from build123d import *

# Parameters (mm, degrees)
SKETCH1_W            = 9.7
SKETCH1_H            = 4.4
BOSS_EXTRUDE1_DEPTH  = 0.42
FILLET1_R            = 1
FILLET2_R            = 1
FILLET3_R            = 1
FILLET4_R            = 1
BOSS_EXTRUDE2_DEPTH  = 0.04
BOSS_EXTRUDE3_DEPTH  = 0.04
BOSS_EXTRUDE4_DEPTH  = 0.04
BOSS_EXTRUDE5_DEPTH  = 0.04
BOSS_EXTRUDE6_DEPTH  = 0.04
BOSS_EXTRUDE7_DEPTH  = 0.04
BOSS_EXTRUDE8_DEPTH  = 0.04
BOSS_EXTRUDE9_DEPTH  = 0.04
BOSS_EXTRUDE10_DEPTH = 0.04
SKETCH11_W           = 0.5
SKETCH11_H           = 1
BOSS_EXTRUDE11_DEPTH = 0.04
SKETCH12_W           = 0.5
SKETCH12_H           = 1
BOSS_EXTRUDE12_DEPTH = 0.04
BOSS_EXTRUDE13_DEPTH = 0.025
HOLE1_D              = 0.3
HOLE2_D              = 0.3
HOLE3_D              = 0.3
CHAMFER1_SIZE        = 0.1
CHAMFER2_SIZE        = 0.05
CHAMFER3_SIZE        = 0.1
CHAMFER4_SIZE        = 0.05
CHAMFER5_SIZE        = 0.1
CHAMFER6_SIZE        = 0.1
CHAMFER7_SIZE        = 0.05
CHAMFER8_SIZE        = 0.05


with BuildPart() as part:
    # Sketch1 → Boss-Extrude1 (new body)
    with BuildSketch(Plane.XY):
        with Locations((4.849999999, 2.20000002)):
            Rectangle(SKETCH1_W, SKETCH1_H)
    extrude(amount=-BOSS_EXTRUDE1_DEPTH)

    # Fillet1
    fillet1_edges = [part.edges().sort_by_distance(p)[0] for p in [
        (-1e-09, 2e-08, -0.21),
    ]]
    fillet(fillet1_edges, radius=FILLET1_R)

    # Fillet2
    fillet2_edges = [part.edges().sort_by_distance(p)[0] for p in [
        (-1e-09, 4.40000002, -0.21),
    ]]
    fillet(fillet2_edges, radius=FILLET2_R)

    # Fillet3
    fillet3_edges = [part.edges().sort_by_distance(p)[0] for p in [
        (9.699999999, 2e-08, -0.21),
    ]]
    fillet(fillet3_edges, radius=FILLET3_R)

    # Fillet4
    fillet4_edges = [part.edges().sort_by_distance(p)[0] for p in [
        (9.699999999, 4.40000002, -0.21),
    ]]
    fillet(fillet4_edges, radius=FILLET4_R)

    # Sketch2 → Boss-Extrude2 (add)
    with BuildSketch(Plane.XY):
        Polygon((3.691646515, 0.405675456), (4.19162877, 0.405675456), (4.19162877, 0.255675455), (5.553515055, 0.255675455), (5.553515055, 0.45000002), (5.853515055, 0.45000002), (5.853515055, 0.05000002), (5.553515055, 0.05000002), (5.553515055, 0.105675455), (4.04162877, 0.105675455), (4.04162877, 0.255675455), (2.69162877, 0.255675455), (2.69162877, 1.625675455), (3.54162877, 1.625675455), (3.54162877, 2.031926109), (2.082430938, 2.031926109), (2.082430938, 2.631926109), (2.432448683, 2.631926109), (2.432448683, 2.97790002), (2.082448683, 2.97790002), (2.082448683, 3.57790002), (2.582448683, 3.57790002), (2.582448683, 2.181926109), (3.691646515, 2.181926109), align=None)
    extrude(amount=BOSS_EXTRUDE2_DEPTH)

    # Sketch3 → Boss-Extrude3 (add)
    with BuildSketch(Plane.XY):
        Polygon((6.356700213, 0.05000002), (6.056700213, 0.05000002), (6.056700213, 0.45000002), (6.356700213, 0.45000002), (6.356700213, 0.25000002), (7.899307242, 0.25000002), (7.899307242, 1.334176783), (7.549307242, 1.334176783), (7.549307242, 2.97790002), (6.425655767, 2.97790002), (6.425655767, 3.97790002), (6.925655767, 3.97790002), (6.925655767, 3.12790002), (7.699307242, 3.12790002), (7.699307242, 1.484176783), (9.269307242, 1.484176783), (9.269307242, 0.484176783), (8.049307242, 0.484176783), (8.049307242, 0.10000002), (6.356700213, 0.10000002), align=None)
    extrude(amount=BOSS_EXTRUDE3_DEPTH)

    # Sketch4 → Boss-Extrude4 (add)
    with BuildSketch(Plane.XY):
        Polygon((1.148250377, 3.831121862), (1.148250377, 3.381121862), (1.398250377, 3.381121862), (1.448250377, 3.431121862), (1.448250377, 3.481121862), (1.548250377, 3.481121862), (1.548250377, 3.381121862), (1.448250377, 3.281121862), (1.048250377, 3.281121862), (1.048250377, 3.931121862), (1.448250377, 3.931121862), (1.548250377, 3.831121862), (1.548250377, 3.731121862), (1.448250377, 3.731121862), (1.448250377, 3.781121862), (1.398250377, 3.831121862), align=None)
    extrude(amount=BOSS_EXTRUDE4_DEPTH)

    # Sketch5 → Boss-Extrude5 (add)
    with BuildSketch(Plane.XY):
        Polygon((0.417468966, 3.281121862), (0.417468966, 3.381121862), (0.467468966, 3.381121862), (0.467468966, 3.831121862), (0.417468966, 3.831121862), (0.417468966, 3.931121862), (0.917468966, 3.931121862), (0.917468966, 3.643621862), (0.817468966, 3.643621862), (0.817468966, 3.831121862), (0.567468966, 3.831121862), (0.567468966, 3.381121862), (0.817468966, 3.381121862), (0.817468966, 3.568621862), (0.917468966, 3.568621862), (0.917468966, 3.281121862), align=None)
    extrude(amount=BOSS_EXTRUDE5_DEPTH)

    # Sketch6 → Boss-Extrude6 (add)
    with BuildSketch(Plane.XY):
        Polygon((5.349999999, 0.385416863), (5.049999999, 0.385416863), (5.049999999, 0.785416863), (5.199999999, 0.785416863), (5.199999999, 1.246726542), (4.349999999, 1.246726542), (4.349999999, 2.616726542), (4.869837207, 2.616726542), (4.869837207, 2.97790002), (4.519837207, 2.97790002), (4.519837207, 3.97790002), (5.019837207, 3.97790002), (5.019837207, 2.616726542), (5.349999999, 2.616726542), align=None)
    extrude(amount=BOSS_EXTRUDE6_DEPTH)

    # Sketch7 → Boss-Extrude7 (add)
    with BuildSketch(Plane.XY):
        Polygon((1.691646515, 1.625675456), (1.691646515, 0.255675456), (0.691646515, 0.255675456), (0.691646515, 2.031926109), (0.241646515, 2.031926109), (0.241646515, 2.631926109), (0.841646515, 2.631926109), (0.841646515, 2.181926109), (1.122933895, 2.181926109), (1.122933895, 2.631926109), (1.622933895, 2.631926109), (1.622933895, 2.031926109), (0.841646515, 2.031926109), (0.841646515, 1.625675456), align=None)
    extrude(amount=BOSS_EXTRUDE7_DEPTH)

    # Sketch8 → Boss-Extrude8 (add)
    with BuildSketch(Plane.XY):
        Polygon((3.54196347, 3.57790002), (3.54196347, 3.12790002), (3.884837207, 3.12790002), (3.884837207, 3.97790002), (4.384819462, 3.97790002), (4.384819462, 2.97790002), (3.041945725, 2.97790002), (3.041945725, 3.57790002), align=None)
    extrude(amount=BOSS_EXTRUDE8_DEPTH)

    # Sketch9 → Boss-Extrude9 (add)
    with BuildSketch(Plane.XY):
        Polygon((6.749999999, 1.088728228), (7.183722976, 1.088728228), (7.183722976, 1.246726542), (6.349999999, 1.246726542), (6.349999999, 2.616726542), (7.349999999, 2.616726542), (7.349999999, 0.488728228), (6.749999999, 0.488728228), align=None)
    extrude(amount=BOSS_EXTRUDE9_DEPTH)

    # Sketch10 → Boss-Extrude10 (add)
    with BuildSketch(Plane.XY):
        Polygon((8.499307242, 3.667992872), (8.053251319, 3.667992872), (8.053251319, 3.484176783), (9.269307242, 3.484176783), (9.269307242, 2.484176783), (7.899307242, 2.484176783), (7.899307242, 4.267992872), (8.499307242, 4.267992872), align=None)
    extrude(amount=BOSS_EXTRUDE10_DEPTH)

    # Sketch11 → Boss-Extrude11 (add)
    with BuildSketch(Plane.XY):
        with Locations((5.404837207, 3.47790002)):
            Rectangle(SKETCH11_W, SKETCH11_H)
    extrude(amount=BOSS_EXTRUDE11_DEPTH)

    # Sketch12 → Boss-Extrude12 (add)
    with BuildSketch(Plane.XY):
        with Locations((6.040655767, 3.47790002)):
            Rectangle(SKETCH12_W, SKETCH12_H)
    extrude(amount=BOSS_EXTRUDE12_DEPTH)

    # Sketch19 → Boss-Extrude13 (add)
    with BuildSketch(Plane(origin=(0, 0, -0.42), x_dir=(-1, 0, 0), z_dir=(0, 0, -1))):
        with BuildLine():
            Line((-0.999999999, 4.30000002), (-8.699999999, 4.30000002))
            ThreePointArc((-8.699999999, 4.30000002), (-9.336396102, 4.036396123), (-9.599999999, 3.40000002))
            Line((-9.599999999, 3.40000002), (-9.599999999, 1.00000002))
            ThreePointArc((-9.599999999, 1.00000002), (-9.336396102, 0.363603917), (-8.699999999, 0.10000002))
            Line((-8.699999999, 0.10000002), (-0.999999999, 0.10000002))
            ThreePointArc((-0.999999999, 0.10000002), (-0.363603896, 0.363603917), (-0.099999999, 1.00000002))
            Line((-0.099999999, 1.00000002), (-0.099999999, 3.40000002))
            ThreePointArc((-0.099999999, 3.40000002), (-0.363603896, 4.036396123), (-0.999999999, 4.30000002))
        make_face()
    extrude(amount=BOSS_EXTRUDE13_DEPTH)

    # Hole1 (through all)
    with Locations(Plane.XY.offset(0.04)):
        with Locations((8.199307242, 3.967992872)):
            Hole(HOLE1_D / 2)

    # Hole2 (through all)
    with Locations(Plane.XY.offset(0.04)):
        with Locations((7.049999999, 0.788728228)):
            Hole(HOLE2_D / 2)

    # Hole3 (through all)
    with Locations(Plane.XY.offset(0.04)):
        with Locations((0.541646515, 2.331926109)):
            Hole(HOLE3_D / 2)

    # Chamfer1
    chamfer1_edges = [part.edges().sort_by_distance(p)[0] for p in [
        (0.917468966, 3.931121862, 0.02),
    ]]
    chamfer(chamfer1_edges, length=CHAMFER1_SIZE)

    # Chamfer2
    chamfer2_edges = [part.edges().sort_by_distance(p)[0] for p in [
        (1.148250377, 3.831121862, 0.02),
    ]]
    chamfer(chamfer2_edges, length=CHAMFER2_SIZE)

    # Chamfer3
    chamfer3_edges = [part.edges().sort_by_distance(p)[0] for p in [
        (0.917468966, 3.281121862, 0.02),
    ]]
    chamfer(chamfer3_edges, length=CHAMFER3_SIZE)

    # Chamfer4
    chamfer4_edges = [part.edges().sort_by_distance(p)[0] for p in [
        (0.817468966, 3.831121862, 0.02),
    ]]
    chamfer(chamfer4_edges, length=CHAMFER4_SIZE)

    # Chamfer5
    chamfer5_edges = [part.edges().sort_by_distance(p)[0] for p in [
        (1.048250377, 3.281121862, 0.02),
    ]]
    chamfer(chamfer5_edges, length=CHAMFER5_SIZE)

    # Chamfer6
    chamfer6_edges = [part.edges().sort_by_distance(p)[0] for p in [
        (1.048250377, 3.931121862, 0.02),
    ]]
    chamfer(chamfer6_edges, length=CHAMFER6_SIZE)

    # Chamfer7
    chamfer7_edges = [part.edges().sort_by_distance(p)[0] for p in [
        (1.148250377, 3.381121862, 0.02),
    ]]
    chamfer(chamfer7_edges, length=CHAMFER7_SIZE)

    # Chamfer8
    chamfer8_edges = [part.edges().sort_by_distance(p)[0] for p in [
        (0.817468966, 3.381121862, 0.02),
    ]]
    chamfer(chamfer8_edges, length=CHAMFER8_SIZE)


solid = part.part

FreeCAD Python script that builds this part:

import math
import FreeCAD as App
import Part
import Sketcher


def edges_at(feature, points):
    """Names of the edges that pass closest to the given points."""
    edges = feature.Shape.Edges
    near = lambda p: min(range(len(edges)), key=lambda i: edges[i].distToShape(Part.Vertex(*p))[0])
    return sorted({f"Edge{near(p) + 1}" for p in points})

doc = App.newDocument("Part")
body = doc.addObject("PartDesign::Body", "Body")

# Sketch on XY plane
sketch1 = body.newObject("Sketcher::SketchObject", "Sketch")
sketch1.AttachmentSupport = (doc.getObject("XY_Plane"), [""])
sketch1.MapMode = "FlatFace"
sketch1.addGeometry([
    Part.LineSegment(App.Vector(0, 4.4, 0), App.Vector(0, 0, 0)),
    Part.LineSegment(App.Vector(0, 0, 0), App.Vector(9.7, 0, 0)),
    Part.LineSegment(App.Vector(9.7, 0, 0), App.Vector(9.7, 4.4, 0)),
    Part.LineSegment(App.Vector(9.7, 4.4, 0), App.Vector(0, 4.4, 0)),
], False)
sketch1.addConstraint([
    Sketcher.Constraint("Coincident", 0, 2, 1, 1),
    Sketcher.Constraint("Coincident", 1, 2, 2, 1),
    Sketcher.Constraint("Coincident", 2, 2, 3, 1),
    Sketcher.Constraint("Coincident", 3, 2, 0, 1),
    Sketcher.Constraint("Vertical", 0),
    Sketcher.Constraint("Horizontal", 1),
    Sketcher.Constraint("Vertical", 2),
    Sketcher.Constraint("Horizontal", 3),
    Sketcher.Constraint("Coincident", 0, 2, -1, 1),
    Sketcher.Constraint("DistanceX", 1, 1, 1, 2, 9.7),
    Sketcher.Constraint("DistanceY", 0, 2, 0, 1, 4.4),
])
pad1 = body.newObject("PartDesign::Pad", "Pad")
pad1.Profile = sketch1
pad1.Length = 0.42
pad1.Reversed = True
doc.recompute()

fillet = body.newObject("PartDesign::Fillet", "Fillet")
fillet.Base = (pad1, edges_at(pad1, [(0, 0, -0.21)]))
fillet.Radius = 1
doc.recompute()

fillet2 = body.newObject("PartDesign::Fillet", "Fillet001")
fillet2.Base = (fillet, edges_at(fillet, [(0, 4.4, -0.21)]))
fillet2.Radius = 1
doc.recompute()

fillet3 = body.newObject("PartDesign::Fillet", "Fillet002")
fillet3.Base = (fillet2, edges_at(fillet2, [(9.7, 0, -0.21)]))
fillet3.Radius = 1
doc.recompute()

fillet4 = body.newObject("PartDesign::Fillet", "Fillet003")
fillet4.Base = (fillet3, edges_at(fillet3, [(9.7, 4.4, -0.21)]))
fillet4.Radius = 1

# Sketch on XY plane
sketch2 = body.newObject("Sketcher::SketchObject", "Sketch001")
sketch2.AttachmentSupport = (doc.getObject("XY_Plane"), [""])
sketch2.MapMode = "FlatFace"
sketch2.addGeometry([
    Part.LineSegment(App.Vector(4.19, 0.41, 0), App.Vector(3.69, 0.41, 0)),  # 0
    Part.LineSegment(App.Vector(3.69, 0.41, 0), App.Vector(3.69, 2.18, 0)),  # 1
    Part.LineSegment(App.Vector(3.69, 2.18, 0), App.Vector(2.58, 2.18, 0)),  # 2
    Part.LineSegment(App.Vector(2.58, 2.18, 0), App.Vector(2.58, 3.58, 0)),  # 3
    Part.LineSegment(App.Vector(2.58, 3.58, 0), App.Vector(2.08, 3.58, 0)),  # 4
    Part.LineSegment(App.Vector(2.08, 3.58, 0), App.Vector(2.08, 2.98, 0)),  # 5
    Part.LineSegment(App.Vector(2.08, 2.98, 0), App.Vector(2.43, 2.98, 0)),  # 6
    Part.LineSegment(App.Vector(2.43, 2.98, 0), App.Vector(2.43, 2.63, 0)),  # 7
    Part.LineSegment(App.Vector(2.43, 2.63, 0), App.Vector(2.08, 2.63, 0)),  # 8
    Part.LineSegment(App.Vector(2.08, 2.63, 0), App.Vector(2.08, 2.03, 0)),  # 9
    Part.LineSegment(App.Vector(2.08, 2.03, 0), App.Vector(3.54, 2.03, 0)),  # 10
    Part.LineSegment(App.Vector(3.54, 2.03, 0), App.Vector(3.54, 1.63, 0)),  # 11
    Part.LineSegment(App.Vector(3.54, 1.63, 0), App.Vector(2.69, 1.63, 0)),  # 12
    Part.LineSegment(App.Vector(2.69, 1.63, 0), App.Vector(2.69, 0.26, 0)),  # 13
    Part.LineSegment(App.Vector(2.69, 0.26, 0), App.Vector(4.04, 0.26, 0)),  # 14
    Part.LineSegment(App.Vector(4.04, 0.26, 0), App.Vector(4.04, 0.11, 0)),  # 15
    Part.LineSegment(App.Vector(4.04, 0.11, 0), App.Vector(5.55, 0.11, 0)),  # 16
    Part.LineSegment(App.Vector(5.55, 0.11, 0), App.Vector(5.55, 0.05, 0)),  # 17
    Part.LineSegment(App.Vector(5.55, 0.05, 0), App.Vector(5.85, 0.05, 0)),  # 18
    Part.LineSegment(App.Vector(5.85, 0.05, 0), App.Vector(5.85, 0.45, 0)),  # 19
    Part.LineSegment(App.Vector(5.85, 0.45, 0), App.Vector(5.55, 0.45, 0)),  # 20
    Part.LineSegment(App.Vector(5.55, 0.45, 0), App.Vector(5.55, 0.26, 0)),  # 21
    Part.LineSegment(App.Vector(5.55, 0.26, 0), App.Vector(4.19, 0.26, 0)),  # 22
    Part.LineSegment(App.Vector(4.19, 0.26, 0), App.Vector(4.19, 0.41, 0)),  # 23
], False)
sketch2.addConstraint([
    Sketcher.Constraint("Coincident", 0, 2, 1, 1),
    Sketcher.Constraint("Coincident", 1, 2, 2, 1),
    Sketcher.Constraint("Coincident", 2, 2, 3, 1),
    Sketcher.Constraint("Coincident", 3, 2, 4, 1),
    Sketcher.Constraint("Coincident", 4, 2, 5, 1),
    Sketcher.Constraint("Coincident", 5, 2, 6, 1),
    Sketcher.Constraint("Coincident", 6, 2, 7, 1),
    Sketcher.Constraint("Coincident", 7, 2, 8, 1),
    Sketcher.Constraint("Coincident", 8, 2, 9, 1),
    Sketcher.Constraint("Coincident", 9, 2, 10, 1),
    Sketcher.Constraint("Coincident", 10, 2, 11, 1),
    Sketcher.Constraint("Coincident", 11, 2, 12, 1),
    Sketcher.Constraint("Coincident", 12, 2, 13, 1),
    Sketcher.Constraint("Coincident", 13, 2, 14, 1),
    Sketcher.Constraint("Coincident", 14, 2, 15, 1),
    Sketcher.Constraint("Coincident", 15, 2, 16, 1),
    Sketcher.Constraint("Coincident", 16, 2, 17, 1),
    Sketcher.Constraint("Coincident", 17, 2, 18, 1),
    Sketcher.Constraint("Coincident", 18, 2, 19, 1),
    Sketcher.Constraint("Coincident", 19, 2, 20, 1),
    Sketcher.Constraint("Coincident", 20, 2, 21, 1),
    Sketcher.Constraint("Coincident", 21, 2, 22, 1),
    Sketcher.Constraint("Coincident", 22, 2, 23, 1),
    Sketcher.Constraint("Coincident", 23, 2, 0, 1),
    Sketcher.Constraint("Horizontal", 0),
    Sketcher.Constraint("Vertical", 1),
    Sketcher.Constraint("Horizontal", 2),
    Sketcher.Constraint("Vertical", 3),
    Sketcher.Constraint("Horizontal", 4),
    Sketcher.Constraint("Vertical", 5),
    Sketcher.Constraint("Horizontal", 6),
    Sketcher.Constraint("Vertical", 7),
    Sketcher.Constraint("Horizontal", 8),
    Sketcher.Constraint("Vertical", 9),
    Sketcher.Constraint("Horizontal", 10),
    Sketcher.Constraint("Vertical", 11),
    Sketcher.Constraint("Horizontal", 12),
    Sketcher.Constraint("Vertical", 13),
    Sketcher.Constraint("Horizontal", 14),
    Sketcher.Constraint("Vertical", 15),
    Sketcher.Constraint("Horizontal", 16),
    Sketcher.Constraint("Vertical", 17),
    Sketcher.Constraint("Horizontal", 18),
    Sketcher.Constraint("Vertical", 19),
    Sketcher.Constraint("Horizontal", 20),
    Sketcher.Constraint("Vertical", 21),
    Sketcher.Constraint("Horizontal", 22),
    Sketcher.Constraint("Vertical", 23),
    Sketcher.Constraint("Horizontal", 14, 2, 21, 2),
    Sketcher.Constraint("Vertical", 17, 2, 20, 2),
    Sketcher.Constraint("Equal", 5, 9),
    Sketcher.Constraint("Equal", 15, 23),
    Sketcher.Constraint("DistanceX", 4, 2, 4, 1, 0.5),
    Sketcher.Constraint("DistanceX", 18, 1, 18, 2, 0.3),
    Sketcher.Constraint("DistanceY", 5, 2, 5, 1, 0.6),
    Sketcher.Constraint("DistanceY", 19, 1, 19, 2, 0.4),
    Sketcher.Constraint("DistanceX", 6, 1, 6, 2, 0.35),
    Sketcher.Constraint("DistanceX", 12, 2, 12, 1, 0.85),
    Sketcher.Constraint("DistanceX", 14, 1, 14, 2, 1.35),
    Sketcher.Constraint("DistanceY", 13, 2, 13, 1, 1.37),
    Sketcher.Constraint("DistanceY", 15, 2, 15, 1, 0.15),
    Sketcher.Constraint("DistanceY", -1, 1, 17, 2, 0.05),
    Sketcher.Constraint("DistanceY", 2, 2, 7, 2, 0.45),
    Sketcher.Constraint("DistanceX", 14, 2, 22, 2, 0.15),
    Sketcher.Constraint("DistanceY", 1, 1, 1, 2, 1.776251),
    Sketcher.Constraint("DistanceY", -1, 1, 3, 2, 3.5779),
    Sketcher.Constraint("DistanceX", 0, 2, 0, 1, 0.499982),
    Sketcher.Constraint("DistanceX", 2, 2, 2, 1, 1.109198),
    Sketcher.Constraint("DistanceX", 8, 2, 8, 1, 0.350018),
    Sketcher.Constraint("DistanceX", 16, 1, 16, 2, 1.511886),
    Sketcher.Constraint("DistanceY", 3, 1, 3, 2, 1.395974),
    Sketcher.Constraint("DistanceX", -1, 1, 2, 2, 2.582449),
])
pad2 = body.newObject("PartDesign::Pad", "Pad001")
pad2.Profile = sketch2
pad2.Length = 0.04

# Sketch on XY plane
sketch3 = body.newObject("Sketcher::SketchObject", "Sketch002")
sketch3.AttachmentSupport = (doc.getObject("XY_Plane"), [""])
sketch3.MapMode = "FlatFace"
sketch3.addGeometry([
    Part.LineSegment(App.Vector(6.06, 0.05, 0), App.Vector(6.36, 0.05, 0)),  # 0
    Part.LineSegment(App.Vector(6.36, 0.05, 0), App.Vector(6.36, 0.1, 0)),  # 1
    Part.LineSegment(App.Vector(6.36, 0.1, 0), App.Vector(8.05, 0.1, 0)),  # 2
    Part.LineSegment(App.Vector(8.05, 0.1, 0), App.Vector(8.05, 0.48, 0)),  # 3
    Part.LineSegment(App.Vector(8.05, 0.48, 0), App.Vector(9.27, 0.48, 0)),  # 4
    Part.LineSegment(App.Vector(9.27, 0.48, 0), App.Vector(9.27, 1.48, 0)),  # 5
    Part.LineSegment(App.Vector(9.27, 1.48, 0), App.Vector(7.7, 1.48, 0)),  # 6
    Part.LineSegment(App.Vector(7.7, 1.48, 0), App.Vector(7.7, 3.13, 0)),  # 7
    Part.LineSegment(App.Vector(7.7, 3.13, 0), App.Vector(6.93, 3.13, 0)),  # 8
    Part.LineSegment(App.Vector(6.93, 3.13, 0), App.Vector(6.93, 3.98, 0)),  # 9
    Part.LineSegment(App.Vector(6.93, 3.98, 0), App.Vector(6.43, 3.98, 0)),  # 10
    Part.LineSegment(App.Vector(6.43, 3.98, 0), App.Vector(6.43, 2.98, 0)),  # 11
    Part.LineSegment(App.Vector(6.43, 2.98, 0), App.Vector(7.55, 2.98, 0)),  # 12
    Part.LineSegment(App.Vector(7.55, 2.98, 0), App.Vector(7.55, 1.33, 0)),  # 13
    Part.LineSegment(App.Vector(7.55, 1.33, 0), App.Vector(7.9, 1.33, 0)),  # 14
    Part.LineSegment(App.Vector(7.9, 1.33, 0), App.Vector(7.9, 0.25, 0)),  # 15
    Part.LineSegment(App.Vector(7.9, 0.25, 0), App.Vector(6.36, 0.25, 0)),  # 16
    Part.LineSegment(App.Vector(6.36, 0.25, 0), App.Vector(6.36, 0.45, 0)),  # 17
    Part.LineSegment(App.Vector(6.36, 0.45, 0), App.Vector(6.06, 0.45, 0)),  # 18
    Part.LineSegment(App.Vector(6.06, 0.45, 0), App.Vector(6.06, 0.05, 0)),  # 19
], False)
sketch3.addConstraint([
    Sketcher.Constraint("Coincident", 0, 2, 1, 1),
    Sketcher.Constraint("Coincident", 1, 2, 2, 1),
    Sketcher.Constraint("Coincident", 2, 2, 3, 1),
    Sketcher.Constraint("Coincident", 3, 2, 4, 1),
    Sketcher.Constraint("Coincident", 4, 2, 5, 1),
    Sketcher.Constraint("Coincident", 5, 2, 6, 1),
    Sketcher.Constraint("Coincident", 6, 2, 7, 1),
    Sketcher.Constraint("Coincident", 7, 2, 8, 1),
    Sketcher.Constraint("Coincident", 8, 2, 9, 1),
    Sketcher.Constraint("Coincident", 9, 2, 10, 1),
    Sketcher.Constraint("Coincident", 10, 2, 11, 1),
    Sketcher.Constraint("Coincident", 11, 2, 12, 1),
    Sketcher.Constraint("Coincident", 12, 2, 13, 1),
    Sketcher.Constraint("Coincident", 13, 2, 14, 1),
    Sketcher.Constraint("Coincident", 14, 2, 15, 1),
    Sketcher.Constraint("Coincident", 15, 2, 16, 1),
    Sketcher.Constraint("Coincident", 16, 2, 17, 1),
    Sketcher.Constraint("Coincident", 17, 2, 18, 1),
    Sketcher.Constraint("Coincident", 18, 2, 19, 1),
    Sketcher.Constraint("Coincident", 19, 2, 0, 1),
    Sketcher.Constraint("Horizontal", 0),
    Sketcher.Constraint("Vertical", 1),
    Sketcher.Constraint("Horizontal", 2),
    Sketcher.Constraint("Vertical", 3),
    Sketcher.Constraint("Horizontal", 4),
    Sketcher.Constraint("Vertical", 5),
    Sketcher.Constraint("Horizontal", 6),
    Sketcher.Constraint("Vertical", 7),
    Sketcher.Constraint("Horizontal", 8),
    Sketcher.Constraint("Vertical", 9),
    Sketcher.Constraint("Horizontal", 10),
    Sketcher.Constraint("Vertical", 11),
    Sketcher.Constraint("Horizontal", 12),
    Sketcher.Constraint("Vertical", 13),
    Sketcher.Constraint("Horizontal", 14),
    Sketcher.Constraint("Vertical", 15),
    Sketcher.Constraint("Horizontal", 16),
    Sketcher.Constraint("Vertical", 17),
    Sketcher.Constraint("Horizontal", 18),
    Sketcher.Constraint("Vertical", 19),
    Sketcher.Constraint("Vertical", 1, 2, 16, 2),
    Sketcher.Constraint("Equal", 5, 11),
    Sketcher.Constraint("Equal", 7, 13),
    Sketcher.Constraint("DistanceY", 5, 1, 5, 2, 1.0),
    Sketcher.Constraint("DistanceX", 0, 1, 0, 2, 0.3),
    Sketcher.Constraint("DistanceX", 10, 2, 10, 1, 0.5),
    Sketcher.Constraint("DistanceY", 17, 1, 17, 2, 0.2),
    Sketcher.Constraint("DistanceY", 19, 2, 19, 1, 0.4),
    Sketcher.Constraint("DistanceX", 4, 1, 4, 2, 1.22),
    Sketcher.Constraint("DistanceX", 6, 2, 6, 1, 1.57),
    Sketcher.Constraint("DistanceX", 14, 1, 14, 2, 0.35),
    Sketcher.Constraint("DistanceY", 1, 1, 1, 2, 0.05),
    Sketcher.Constraint("DistanceY", 9, 1, 9, 2, 0.85),
    Sketcher.Constraint("DistanceY", -1, 1, 1, 2, 0.1),
    Sketcher.Constraint("DistanceX", 13, 2, 3, 2, 0.5),
    Sketcher.Constraint("DistanceX", 8, 2, 8, 1, 0.773651),
    Sketcher.Constraint("DistanceX", -1, 1, 0, 2, 6.3567),
    Sketcher.Constraint("DistanceY", -1, 1, 7, 2, 3.1279),
    Sketcher.Constraint("DistanceX", 2, 1, 2, 2, 1.692607),
    Sketcher.Constraint("DistanceY", 3, 1, 3, 2, 0.384177),
])
pad3 = body.newObject("PartDesign::Pad", "Pad002")
pad3.Profile = sketch3
pad3.Length = 0.04

# Sketch on XY plane
sketch4 = body.newObject("Sketcher::SketchObject", "Sketch003")
sketch4.AttachmentSupport = (doc.getObject("XY_Plane"), [""])
sketch4.MapMode = "FlatFace"
sketch4.addGeometry([
    Part.LineSegment(App.Vector(1.148, 3.381, 0), App.Vector(1.148, 3.831, 0)),  # 0
    Part.LineSegment(App.Vector(1.148, 3.831, 0), App.Vector(1.398, 3.831, 0)),  # 1
    Part.LineSegment(App.Vector(1.398, 3.831, 0), App.Vector(1.448, 3.781, 0)),  # 2
    Part.LineSegment(App.Vector(1.448, 3.781, 0), App.Vector(1.448, 3.731, 0)),  # 3
    Part.LineSegment(App.Vector(1.448, 3.731, 0), App.Vector(1.548, 3.731, 0)),  # 4
    Part.LineSegment(App.Vector(1.548, 3.731, 0), App.Vector(1.548, 3.831, 0)),  # 5
    Part.LineSegment(App.Vector(1.548, 3.831, 0), App.Vector(1.448, 3.931, 0)),  # 6
    Part.LineSegment(App.Vector(1.448, 3.931, 0), App.Vector(1.048, 3.931, 0)),  # 7
    Part.LineSegment(App.Vector(1.048, 3.931, 0), App.Vector(1.048, 3.281, 0)),  # 8
    Part.LineSegment(App.Vector(1.048, 3.281, 0), App.Vector(1.448, 3.281, 0)),  # 9
    Part.LineSegment(App.Vector(1.448, 3.281, 0), App.Vector(1.548, 3.381, 0)),  # 10
    Part.LineSegment(App.Vector(1.548, 3.381, 0), App.Vector(1.548, 3.481, 0)),  # 11
    Part.LineSegment(App.Vector(1.548, 3.481, 0), App.Vector(1.448, 3.481, 0)),  # 12
    Part.LineSegment(App.Vector(1.448, 3.481, 0), App.Vector(1.448, 3.431, 0)),  # 13
    Part.LineSegment(App.Vector(1.448, 3.431, 0), App.Vector(1.398, 3.381, 0)),  # 14
    Part.LineSegment(App.Vector(1.398, 3.381, 0), App.Vector(1.148, 3.381, 0)),  # 15
], False)
sketch4.addConstraint([
    Sketcher.Constraint("Coincident", 0, 2, 1, 1),
    Sketcher.Constraint("Coincident", 1, 2, 2, 1),
    Sketcher.Constraint("Coincident", 2, 2, 3, 1),
    Sketcher.Constraint("Coincident", 3, 2, 4, 1),
    Sketcher.Constraint("Coincident", 4, 2, 5, 1),
    Sketcher.Constraint("Coincident", 5, 2, 6, 1),
    Sketcher.Constraint("Coincident", 6, 2, 7, 1),
    Sketcher.Constraint("Coincident", 7, 2, 8, 1),
    Sketcher.Constraint("Coincident", 8, 2, 9, 1),
    Sketcher.Constraint("Coincident", 9, 2, 10, 1),
    Sketcher.Constraint("Coincident", 10, 2, 11, 1),
    Sketcher.Constraint("Coincident", 11, 2, 12, 1),
    Sketcher.Constraint("Coincident", 12, 2, 13, 1),
    Sketcher.Constraint("Coincident", 13, 2, 14, 1),
    Sketcher.Constraint("Coincident", 14, 2, 15, 1),
    Sketcher.Constraint("Coincident", 15, 2, 0, 1),
    Sketcher.Constraint("Vertical", 0),
    Sketcher.Constraint("Horizontal", 1),
    Sketcher.Constraint("Vertical", 3),
    Sketcher.Constraint("Horizontal", 4),
    Sketcher.Constraint("Vertical", 5),
    Sketcher.Constraint("Horizontal", 7),
    Sketcher.Constraint("Vertical", 8),
    Sketcher.Constraint("Horizontal", 9),
    Sketcher.Constraint("Vertical", 11),
    Sketcher.Constraint("Horizontal", 12),
    Sketcher.Constraint("Vertical", 13),
    Sketcher.Constraint("Horizontal", 15),
    Sketcher.Constraint("Parallel", 2, 6),
    Sketcher.Constraint("Perpendicular", 6, 10),
    Sketcher.Constraint("Parallel", 10, 14),
    Sketcher.Constraint("Horizontal", 1, 2, 5, 2),
    Sketcher.Constraint("Horizontal", 10, 2, 14, 2),
    Sketcher.Constraint("Vertical", 3, 2, 6, 2),
    Sketcher.Constraint("Vertical", 6, 2, 9, 2),
    Sketcher.Constraint("Vertical", 5, 2, 10, 2),
    Sketcher.Constraint("Vertical", 9, 2, 12, 2),
    Sketcher.Constraint("Vertical", 1, 2, 14, 2),
    Sketcher.Constraint("Equal", 12, 5),
    Sketcher.Constraint("Equal", 5, 11),
    Sketcher.Constraint("Equal", 3, 13),
    Sketcher.Constraint("DistanceX", 4, 1, 4, 2, 0.1),
    Sketcher.Constraint("DistanceX", 7, 2, 7, 1, 0.4),
    Sketcher.Constraint("DistanceX", 1, 1, 1, 2, 0.25),
    Sketcher.Constraint("DistanceY", 0, 1, 0, 2, 0.45),
    Sketcher.Constraint("DistanceY", 3, 2, 3, 1, 0.05),
    Sketcher.Constraint("DistanceX", -1, 1, 0, 2, 1.14825),
    Sketcher.Constraint("DistanceY", -1, 1, 0, 2, 3.831122),
])
pad4 = body.newObject("PartDesign::Pad", "Pad003")
pad4.Profile = sketch4
pad4.Length = 0.04

# Sketch on XY plane
sketch5 = body.newObject("Sketcher::SketchObject", "Sketch004")
sketch5.AttachmentSupport = (doc.getObject("XY_Plane"), [""])
sketch5.MapMode = "FlatFace"
sketch5.addGeometry([
    Part.LineSegment(App.Vector(0.42, 3.38, 0), App.Vector(0.42, 3.28, 0)),  # 0
    Part.LineSegment(App.Vector(0.42, 3.28, 0), App.Vector(0.92, 3.28, 0)),  # 1
    Part.LineSegment(App.Vector(0.92, 3.28, 0), App.Vector(0.92, 3.57, 0)),  # 2
    Part.LineSegment(App.Vector(0.92, 3.57, 0), App.Vector(0.82, 3.57, 0)),  # 3
    Part.LineSegment(App.Vector(0.82, 3.57, 0), App.Vector(0.82, 3.38, 0)),  # 4
    Part.LineSegment(App.Vector(0.82, 3.38, 0), App.Vector(0.57, 3.38, 0)),  # 5
    Part.LineSegment(App.Vector(0.57, 3.38, 0), App.Vector(0.57, 3.83, 0)),  # 6
    Part.LineSegment(App.Vector(0.57, 3.83, 0), App.Vector(0.82, 3.83, 0)),  # 7
    Part.LineSegment(App.Vector(0.82, 3.83, 0), App.Vector(0.82, 3.64, 0)),  # 8
    Part.LineSegment(App.Vector(0.82, 3.64, 0), App.Vector(0.92, 3.64, 0)),  # 9
    Part.LineSegment(App.Vector(0.92, 3.64, 0), App.Vector(0.92, 3.93, 0)),  # 10
    Part.LineSegment(App.Vector(0.92, 3.93, 0), App.Vector(0.42, 3.93, 0)),  # 11
    Part.LineSegment(App.Vector(0.42, 3.93, 0), App.Vector(0.42, 3.83, 0)),  # 12
    Part.LineSegment(App.Vector(0.42, 3.83, 0), App.Vector(0.47, 3.83, 0)),  # 13
    Part.LineSegment(App.Vector(0.47, 3.83, 0), App.Vector(0.47, 3.38, 0)),  # 14
    Part.LineSegment(App.Vector(0.47, 3.38, 0), App.Vector(0.42, 3.38, 0)),  # 15
], False)
sketch5.addConstraint([
    Sketcher.Constraint("Coincident", 0, 2, 1, 1),
    Sketcher.Constraint("Coincident", 1, 2, 2, 1),
    Sketcher.Constraint("Coincident", 2, 2, 3, 1),
    Sketcher.Constraint("Coincident", 3, 2, 4, 1),
    Sketcher.Constraint("Coincident", 4, 2, 5, 1),
    Sketcher.Constraint("Coincident", 5, 2, 6, 1),
    Sketcher.Constraint("Coincident", 6, 2, 7, 1),
    Sketcher.Constraint("Coincident", 7, 2, 8, 1),
    Sketcher.Constraint("Coincident", 8, 2, 9, 1),
    Sketcher.Constraint("Coincident", 9, 2, 10, 1),
    Sketcher.Constraint("Coincident", 10, 2, 11, 1),
    Sketcher.Constraint("Coincident", 11, 2, 12, 1),
    Sketcher.Constraint("Coincident", 12, 2, 13, 1),
    Sketcher.Constraint("Coincident", 13, 2, 14, 1),
    Sketcher.Constraint("Coincident", 14, 2, 15, 1),
    Sketcher.Constraint("Coincident", 15, 2, 0, 1),
    Sketcher.Constraint("Vertical", 0),
    Sketcher.Constraint("Horizontal", 1),
    Sketcher.Constraint("Vertical", 2),
    Sketcher.Constraint("Horizontal", 3),
    Sketcher.Constraint("Vertical", 4),
    Sketcher.Constraint("Horizontal", 5),
    Sketcher.Constraint("Vertical", 6),
    Sketcher.Constraint("Horizontal", 7),
    Sketcher.Constraint("Vertical", 8),
    Sketcher.Constraint("Horizontal", 9),
    Sketcher.Constraint("Vertical", 10),
    Sketcher.Constraint("Horizontal", 11),
    Sketcher.Constraint("Vertical", 12),
    Sketcher.Constraint("Horizontal", 13),
    Sketcher.Constraint("Vertical", 14),
    Sketcher.Constraint("Horizontal", 15),
    Sketcher.Constraint("Horizontal", 7, 2, 12, 2),
    Sketcher.Constraint("Horizontal", 5, 2, 14, 2),
    Sketcher.Constraint("Vertical", 4, 2, 7, 2),
    Sketcher.Constraint("Vertical", 2, 2, 9, 2),
    Sketcher.Constraint("Vertical", 0, 2, 11, 2),
    Sketcher.Constraint("Equal", 9, 0),
    Sketcher.Constraint("Equal", 4, 8),
    Sketcher.Constraint("Equal", 2, 10),
    Sketcher.Constraint("DistanceX", 1, 1, 1, 2, 0.5),
    Sketcher.Constraint("DistanceX", 3, 2, 3, 1, 0.1),
    Sketcher.Constraint("DistanceX", 5, 2, 5, 1, 0.25),
    Sketcher.Constraint("DistanceX", 13, 1, 13, 2, 0.05),
    Sketcher.Constraint("DistanceY", 6, 1, 6, 2, 0.45),
    Sketcher.Constraint("DistanceY", 2, 1, 2, 2, 0.2875),
    Sketcher.Constraint("DistanceX", -1, 1, 0, 2, 0.417469),
    Sketcher.Constraint("DistanceY", -1, 1, 0, 2, 3.281122),
])
pad5 = body.newObject("PartDesign::Pad", "Pad004")
pad5.Profile = sketch5
pad5.Length = 0.04

# Sketch on XY plane
sketch6 = body.newObject("Sketcher::SketchObject", "Sketch005")
sketch6.AttachmentSupport = (doc.getObject("XY_Plane"), [""])
sketch6.MapMode = "FlatFace"
sketch6.addGeometry([
    Part.LineSegment(App.Vector(5.05, 0.39, 0), App.Vector(5.35, 0.39, 0)),  # 0
    Part.LineSegment(App.Vector(5.35, 0.39, 0), App.Vector(5.35, 2.62, 0)),  # 1
    Part.LineSegment(App.Vector(5.35, 2.62, 0), App.Vector(5.02, 2.62, 0)),  # 2
    Part.LineSegment(App.Vector(5.02, 2.62, 0), App.Vector(5.02, 3.98, 0)),  # 3
    Part.LineSegment(App.Vector(5.02, 3.98, 0), App.Vector(4.52, 3.98, 0)),  # 4
    Part.LineSegment(App.Vector(4.52, 3.98, 0), App.Vector(4.52, 2.98, 0)),  # 5
    Part.LineSegment(App.Vector(4.52, 2.98, 0), App.Vector(4.87, 2.98, 0)),  # 6
    Part.LineSegment(App.Vector(4.87, 2.98, 0), App.Vector(4.87, 2.62, 0)),  # 7
    Part.LineSegment(App.Vector(4.87, 2.62, 0), App.Vector(4.35, 2.62, 0)),  # 8
    Part.LineSegment(App.Vector(4.35, 2.62, 0), App.Vector(4.35, 1.25, 0)),  # 9
    Part.LineSegment(App.Vector(4.35, 1.25, 0), App.Vector(5.2, 1.25, 0)),  # 10
    Part.LineSegment(App.Vector(5.2, 1.25, 0), App.Vector(5.2, 0.79, 0)),  # 11
    Part.LineSegment(App.Vector(5.2, 0.79, 0), App.Vector(5.05, 0.79, 0)),  # 12
    Part.LineSegment(App.Vector(5.05, 0.79, 0), App.Vector(5.05, 0.39, 0)),  # 13
], False)
sketch6.addConstraint([
    Sketcher.Constraint("Coincident", 0, 2, 1, 1),
    Sketcher.Constraint("Coincident", 1, 2, 2, 1),
    Sketcher.Constraint("Coincident", 2, 2, 3, 1),
    Sketcher.Constraint("Coincident", 3, 2, 4, 1),
    Sketcher.Constraint("Coincident", 4, 2, 5, 1),
    Sketcher.Constraint("Coincident", 5, 2, 6, 1),
    Sketcher.Constraint("Coincident", 6, 2, 7, 1),
    Sketcher.Constraint("Coincident", 7, 2, 8, 1),
    Sketcher.Constraint("Coincident", 8, 2, 9, 1),
    Sketcher.Constraint("Coincident", 9, 2, 10, 1),
    Sketcher.Constraint("Coincident", 10, 2, 11, 1),
    Sketcher.Constraint("Coincident", 11, 2, 12, 1),
    Sketcher.Constraint("Coincident", 12, 2, 13, 1),
    Sketcher.Constraint("Coincident", 13, 2, 0, 1),
    Sketcher.Constraint("Horizontal", 0),
    Sketcher.Constraint("Vertical", 1),
    Sketcher.Constraint("Horizontal", 2),
    Sketcher.Constraint("Vertical", 3),
    Sketcher.Constraint("Horizontal", 4),
    Sketcher.Constraint("Vertical", 5),
    Sketcher.Constraint("Horizontal", 6),
    Sketcher.Constraint("Vertical", 7),
    Sketcher.Constraint("Horizontal", 8),
    Sketcher.Constraint("Vertical", 9),
    Sketcher.Constraint("Horizontal", 10),
    Sketcher.Constraint("Vertical", 11),
    Sketcher.Constraint("Horizontal", 12),
    Sketcher.Constraint("Vertical", 13),
    Sketcher.Constraint("Horizontal", 2, 2, 7, 2),
    Sketcher.Constraint("DistanceY", 5, 2, 5, 1, 1.0),
    Sketcher.Constraint("DistanceX", 0, 1, 0, 2, 0.3),
    Sketcher.Constraint("DistanceX", 4, 2, 4, 1, 0.5),
    Sketcher.Constraint("DistanceY", 13, 2, 13, 1, 0.4),
    Sketcher.Constraint("DistanceX", 8, 2, 1, 2, 1.0),
    Sketcher.Constraint("DistanceX", 6, 1, 6, 2, 0.35),
    Sketcher.Constraint("DistanceX", 10, 1, 10, 2, 0.85),
    Sketcher.Constraint("DistanceY", 9, 2, 9, 1, 1.37),
    Sketcher.Constraint("DistanceX", -1, 1, 10, 2, 5.2),
    Sketcher.Constraint("DistanceY", 1, 1, 1, 2, 2.23131),
    Sketcher.Constraint("DistanceY", -1, 1, 3, 2, 3.9779),
    Sketcher.Constraint("DistanceX", 2, 2, 2, 1, 0.330163),
    Sketcher.Constraint("DistanceY", 3, 1, 3, 2, 1.361173),
])
pad6 = body.newObject("PartDesign::Pad", "Pad005")
pad6.Profile = sketch6
pad6.Length = 0.04

# Sketch on XY plane
sketch7 = body.newObject("Sketcher::SketchObject", "Sketch006")
sketch7.AttachmentSupport = (doc.getObject("XY_Plane"), [""])
sketch7.MapMode = "FlatFace"
sketch7.addGeometry([
    Part.LineSegment(App.Vector(1.69, 0.26, 0), App.Vector(1.69, 1.63, 0)),  # 0
    Part.LineSegment(App.Vector(1.69, 1.63, 0), App.Vector(0.84, 1.63, 0)),  # 1
    Part.LineSegment(App.Vector(0.84, 1.63, 0), App.Vector(0.84, 2.03, 0)),  # 2
    Part.LineSegment(App.Vector(0.84, 2.03, 0), App.Vector(1.62, 2.03, 0)),  # 3
    Part.LineSegment(App.Vector(1.62, 2.03, 0), App.Vector(1.62, 2.63, 0)),  # 4
    Part.LineSegment(App.Vector(1.62, 2.63, 0), App.Vector(1.12, 2.63, 0)),  # 5
    Part.LineSegment(App.Vector(1.12, 2.63, 0), App.Vector(1.12, 2.18, 0)),  # 6
    Part.LineSegment(App.Vector(1.12, 2.18, 0), App.Vector(0.84, 2.18, 0)),  # 7
    Part.LineSegment(App.Vector(0.84, 2.18, 0), App.Vector(0.84, 2.63, 0)),  # 8
    Part.LineSegment(App.Vector(0.84, 2.63, 0), App.Vector(0.24, 2.63, 0)),  # 9
    Part.LineSegment(App.Vector(0.24, 2.63, 0), App.Vector(0.24, 2.03, 0)),  # 10
    Part.LineSegment(App.Vector(0.24, 2.03, 0), App.Vector(0.69, 2.03, 0)),  # 11
    Part.LineSegment(App.Vector(0.69, 2.03, 0), App.Vector(0.69, 0.26, 0)),  # 12
    Part.LineSegment(App.Vector(0.69, 0.26, 0), App.Vector(1.69, 0.26, 0)),  # 13
], False)
sketch7.addConstraint([
    Sketcher.Constraint("Coincident", 0, 2, 1, 1),
    Sketcher.Constraint("Coincident", 1, 2, 2, 1),
    Sketcher.Constraint("Coincident", 2, 2, 3, 1),
    Sketcher.Constraint("Coincident", 3, 2, 4, 1),
    Sketcher.Constraint("Coincident", 4, 2, 5, 1),
    Sketcher.Constraint("Coincident", 5, 2, 6, 1),
    Sketcher.Constraint("Coincident", 6, 2, 7, 1),
    Sketcher.Constraint("Coincident", 7, 2, 8, 1),
    Sketcher.Constraint("Coincident", 8, 2, 9, 1),
    Sketcher.Constraint("Coincident", 9, 2, 10, 1),
    Sketcher.Constraint("Coincident", 10, 2, 11, 1),
    Sketcher.Constraint("Coincident", 11, 2, 12, 1),
    Sketcher.Constraint("Coincident", 12, 2, 13, 1),
    Sketcher.Constraint("Coincident", 13, 2, 0, 1),
    Sketcher.Constraint("Vertical", 0),
    Sketcher.Constraint("Horizontal", 1),
    Sketcher.Constraint("Vertical", 2),
    Sketcher.Constraint("Horizontal", 3),
    Sketcher.Constraint("Vertical", 4),
    Sketcher.Constraint("Horizontal", 5),
    Sketcher.Constraint("Vertical", 6),
    Sketcher.Constraint("Horizontal", 7),
    Sketcher.Constraint("Vertical", 8),
    Sketcher.Constraint("Horizontal", 9),
    Sketcher.Constraint("Vertical", 10),
    Sketcher.Constraint("Horizontal", 11),
    Sketcher.Constraint("Vertical", 12),
    Sketcher.Constraint("Horizontal", 13),
    Sketcher.Constraint("Horizontal", 5, 2, 8, 2),
    Sketcher.Constraint("Horizontal", 3, 2, 10, 2),
    Sketcher.Constraint("Vertical", 2, 2, 7, 2),
    Sketcher.Constraint("Equal", 9, 4),
    Sketcher.Constraint("Equal", 11, 6),
    Sketcher.Constraint("DistanceX", 13, 1, 13, 2, 1.0),
    Sketcher.Constraint("DistanceX", 5, 2, 5, 1, 0.5),
    Sketcher.Constraint("DistanceX", 9, 2, 9, 1, 0.6),
    Sketcher.Constraint("DistanceX", 1, 2, 1, 1, 0.85),
    Sketcher.Constraint("DistanceY", 0, 1, 0, 2, 1.37),
    Sketcher.Constraint("DistanceY", 2, 1, 2, 2, 0.406251),
    Sketcher.Constraint("DistanceX", 3, 1, 3, 2, 0.781287),
    Sketcher.Constraint("DistanceX", -1, 1, 0, 2, 1.691647),
    Sketcher.Constraint("DistanceY", -1, 1, 0, 2, 1.625675),
])
pad7 = body.newObject("PartDesign::Pad", "Pad006")
pad7.Profile = sketch7
pad7.Length = 0.04

# Sketch on XY plane
sketch8 = body.newObject("Sketcher::SketchObject", "Sketch007")
sketch8.AttachmentSupport = (doc.getObject("XY_Plane"), [""])
sketch8.MapMode = "FlatFace"
sketch8.addGeometry([
    Part.LineSegment(App.Vector(3.54, 3.13, 0), App.Vector(3.54, 3.58, 0)),  # 0
    Part.LineSegment(App.Vector(3.54, 3.58, 0), App.Vector(3.04, 3.58, 0)),  # 1
    Part.LineSegment(App.Vector(3.04, 3.58, 0), App.Vector(3.04, 2.98, 0)),  # 2
    Part.LineSegment(App.Vector(3.04, 2.98, 0), App.Vector(4.38, 2.98, 0)),  # 3
    Part.LineSegment(App.Vector(4.38, 2.98, 0), App.Vector(4.38, 3.98, 0)),  # 4
    Part.LineSegment(App.Vector(4.38, 3.98, 0), App.Vector(3.88, 3.98, 0)),  # 5
    Part.LineSegment(App.Vector(3.88, 3.98, 0), App.Vector(3.88, 3.13, 0)),  # 6
    Part.LineSegment(App.Vector(3.88, 3.13, 0), App.Vector(3.54, 3.13, 0)),  # 7
], False)
sketch8.addConstraint([
    Sketcher.Constraint("Coincident", 0, 2, 1, 1),
    Sketcher.Constraint("Coincident", 1, 2, 2, 1),
    Sketcher.Constraint("Coincident", 2, 2, 3, 1),
    Sketcher.Constraint("Coincident", 3, 2, 4, 1),
    Sketcher.Constraint("Coincident", 4, 2, 5, 1),
    Sketcher.Constraint("Coincident", 5, 2, 6, 1),
    Sketcher.Constraint("Coincident", 6, 2, 7, 1),
    Sketcher.Constraint("Coincident", 7, 2, 0, 1),
    Sketcher.Constraint("Vertical", 0),
    Sketcher.Constraint("Horizontal", 1),
    Sketcher.Constraint("Vertical", 2),
    Sketcher.Constraint("Horizontal", 3),
    Sketcher.Constraint("Vertical", 4),
    Sketcher.Constraint("Horizontal", 5),
    Sketcher.Constraint("Vertical", 6),
    Sketcher.Constraint("Horizontal", 7),
    Sketcher.Constraint("DistanceY", 4, 1, 4, 2, 1.0),
    Sketcher.Constraint("DistanceY", 2, 2, 2, 1, 0.6),
    Sketcher.Constraint("DistanceY", 0, 1, 0, 2, 0.45),
    Sketcher.Constraint("DistanceY", -1, 1, 0, 2, 3.5779),
    Sketcher.Constraint("DistanceX", 1, 2, 1, 1, 0.500018),
    Sketcher.Constraint("DistanceX", 3, 1, 3, 2, 1.342874),
    Sketcher.Constraint("DistanceX", 5, 2, 5, 1, 0.499982),
    Sketcher.Constraint("DistanceX", -1, 1, 3, 2, 4.384819),
])
pad8 = body.newObject("PartDesign::Pad", "Pad007")
pad8.Profile = sketch8
pad8.Length = 0.04

# Sketch on XY plane
sketch9 = body.newObject("Sketcher::SketchObject", "Sketch008")
sketch9.AttachmentSupport = (doc.getObject("XY_Plane"), [""])
sketch9.MapMode = "FlatFace"
sketch9.addGeometry([
    Part.LineSegment(App.Vector(7.18, 1.09, 0), App.Vector(6.75, 1.09, 0)),  # 0
    Part.LineSegment(App.Vector(6.75, 1.09, 0), App.Vector(6.75, 0.49, 0)),  # 1
    Part.LineSegment(App.Vector(6.75, 0.49, 0), App.Vector(7.35, 0.49, 0)),  # 2
    Part.LineSegment(App.Vector(7.35, 0.49, 0), App.Vector(7.35, 2.62, 0)),  # 3
    Part.LineSegment(App.Vector(7.35, 2.62, 0), App.Vector(6.35, 2.62, 0)),  # 4
    Part.LineSegment(App.Vector(6.35, 2.62, 0), App.Vector(6.35, 1.25, 0)),  # 5
    Part.LineSegment(App.Vector(6.35, 1.25, 0), App.Vector(7.18, 1.25, 0)),  # 6
    Part.LineSegment(App.Vector(7.18, 1.25, 0), App.Vector(7.18, 1.09, 0)),  # 7
], False)
sketch9.addConstraint([
    Sketcher.Constraint("Coincident", 0, 2, 1, 1),
    Sketcher.Constraint("Coincident", 1, 2, 2, 1),
    Sketcher.Constraint("Coincident", 2, 2, 3, 1),
    Sketcher.Constraint("Coincident", 3, 2, 4, 1),
    Sketcher.Constraint("Coincident", 4, 2, 5, 1),
    Sketcher.Constraint("Coincident", 5, 2, 6, 1),
    Sketcher.Constraint("Coincident", 6, 2, 7, 1),
    Sketcher.Constraint("Coincident", 7, 2, 0, 1),
    Sketcher.Constraint("Horizontal", 0),
    Sketcher.Constraint("Vertical", 1),
    Sketcher.Constraint("Horizontal", 2),
    Sketcher.Constraint("Vertical", 3),
    Sketcher.Constraint("Horizontal", 4),
    Sketcher.Constraint("Vertical", 5),
    Sketcher.Constraint("Horizontal", 6),
    Sketcher.Constraint("Vertical", 7),
    Sketcher.Constraint("Equal", 2, 1),
    Sketcher.Constraint("DistanceX", 4, 2, 4, 1, 1.0),
    Sketcher.Constraint("DistanceX", 2, 1, 2, 2, 0.6),
    Sketcher.Constraint("DistanceY", 5, 2, 5, 1, 1.37),
    Sketcher.Constraint("DistanceY", 3, 1, 3, 2, 2.127998),
    Sketcher.Constraint("DistanceX", -1, 1, 0, 2, 6.75),
    Sketcher.Constraint("DistanceX", 0, 2, 0, 1, 0.433723),
    Sketcher.Constraint("DistanceY", -1, 1, 0, 2, 1.088728),
])
pad9 = body.newObject("PartDesign::Pad", "Pad008")
pad9.Profile = sketch9
pad9.Length = 0.04

# Sketch on XY plane
sketch10 = body.newObject("Sketcher::SketchObject", "Sketch009")
sketch10.AttachmentSupport = (doc.getObject("XY_Plane"), [""])
sketch10.MapMode = "FlatFace"
sketch10.addGeometry([
    Part.LineSegment(App.Vector(8.05, 3.67, 0), App.Vector(8.5, 3.67, 0)),  # 0
    Part.LineSegment(App.Vector(8.5, 3.67, 0), App.Vector(8.5, 4.27, 0)),  # 1
    Part.LineSegment(App.Vector(8.5, 4.27, 0), App.Vector(7.9, 4.27, 0)),  # 2
    Part.LineSegment(App.Vector(7.9, 4.27, 0), App.Vector(7.9, 2.48, 0)),  # 3
    Part.LineSegment(App.Vector(7.9, 2.48, 0), App.Vector(9.27, 2.48, 0)),  # 4
    Part.LineSegment(App.Vector(9.27, 2.48, 0), App.Vector(9.27, 3.48, 0)),  # 5
    Part.LineSegment(App.Vector(9.27, 3.48, 0), App.Vector(8.05, 3.48, 0)),  # 6
    Part.LineSegment(App.Vector(8.05, 3.48, 0), App.Vector(8.05, 3.67, 0)),  # 7
], False)
sketch10.addConstraint([
    Sketcher.Constraint("Coincident", 0, 2, 1, 1),
    Sketcher.Constraint("Coincident", 1, 2, 2, 1),
    Sketcher.Constraint("Coincident", 2, 2, 3, 1),
    Sketcher.Constraint("Coincident", 3, 2, 4, 1),
    Sketcher.Constraint("Coincident", 4, 2, 5, 1),
    Sketcher.Constraint("Coincident", 5, 2, 6, 1),
    Sketcher.Constraint("Coincident", 6, 2, 7, 1),
    Sketcher.Constraint("Coincident", 7, 2, 0, 1),
    Sketcher.Constraint("Horizontal", 0),
    Sketcher.Constraint("Vertical", 1),
    Sketcher.Constraint("Horizontal", 2),
    Sketcher.Constraint("Vertical", 3),
    Sketcher.Constraint("Horizontal", 4),
    Sketcher.Constraint("Vertical", 5),
    Sketcher.Constraint("Horizontal", 6),
    Sketcher.Constraint("Vertical", 7),
    Sketcher.Constraint("Equal", 2, 1),
    Sketcher.Constraint("DistanceY", 5, 1, 5, 2, 1.0),
    Sketcher.Constraint("DistanceX", 2, 2, 2, 1, 0.6),
    Sketcher.Constraint("DistanceX", 4, 1, 4, 2, 1.37),
    Sketcher.Constraint("DistanceX", 0, 1, 0, 2, 0.446056),
    Sketcher.Constraint("DistanceY", 3, 2, 3, 1, 1.783816),
    Sketcher.Constraint("DistanceX", -1, 1, 6, 2, 8.053251),
    Sketcher.Constraint("DistanceY", -1, 1, 0, 2, 3.667993),
])
pad10 = body.newObject("PartDesign::Pad", "Pad009")
pad10.Profile = sketch10
pad10.Length = 0.04

# Sketch on XY plane
sketch11 = body.newObject("Sketcher::SketchObject", "Sketch010")
sketch11.AttachmentSupport = (doc.getObject("XY_Plane"), [""])
sketch11.MapMode = "FlatFace"
sketch11.addGeometry([
    Part.LineSegment(App.Vector(5.2, 4, 0), App.Vector(5.2, 3, 0)),
    Part.LineSegment(App.Vector(5.2, 3, 0), App.Vector(5.7, 3, 0)),
    Part.LineSegment(App.Vector(5.7, 3, 0), App.Vector(5.7, 4, 0)),
    Part.LineSegment(App.Vector(5.7, 4, 0), App.Vector(5.2, 4, 0)),
], False)
sketch11.addConstraint([
    Sketcher.Constraint("Coincident", 0, 2, 1, 1),
    Sketcher.Constraint("Coincident", 1, 2, 2, 1),
    Sketcher.Constraint("Coincident", 2, 2, 3, 1),
    Sketcher.Constraint("Coincident", 3, 2, 0, 1),
    Sketcher.Constraint("Vertical", 0),
    Sketcher.Constraint("Horizontal", 1),
    Sketcher.Constraint("Vertical", 2),
    Sketcher.Constraint("Horizontal", 3),
    Sketcher.Constraint("DistanceY", 0, 2, 0, 1, 1.0),
    Sketcher.Constraint("DistanceX", 1, 1, 1, 2, 0.5),
    Sketcher.Constraint("DistanceY", -1, 1, 0, 2, 2.9779),
    Sketcher.Constraint("DistanceX", -1, 1, 0, 2, 5.154837),
])
pad11 = body.newObject("PartDesign::Pad", "Pad010")
pad11.Profile = sketch11
pad11.Length = 0.04

# Sketch on XY plane
sketch12 = body.newObject("Sketcher::SketchObject", "Sketch011")
sketch12.AttachmentSupport = (doc.getObject("XY_Plane"), [""])
sketch12.MapMode = "FlatFace"
sketch12.addGeometry([
    Part.LineSegment(App.Vector(5.8, 4, 0), App.Vector(5.8, 3, 0)),
    Part.LineSegment(App.Vector(5.8, 3, 0), App.Vector(6.3, 3, 0)),
    Part.LineSegment(App.Vector(6.3, 3, 0), App.Vector(6.3, 4, 0)),
    Part.LineSegment(App.Vector(6.3, 4, 0), App.Vector(5.8, 4, 0)),
], False)
sketch12.addConstraint([
    Sketcher.Constraint("Coincident", 0, 2, 1, 1),
    Sketcher.Constraint("Coincident", 1, 2, 2, 1),
    Sketcher.Constraint("Coincident", 2, 2, 3, 1),
    Sketcher.Constraint("Coincident", 3, 2, 0, 1),
    Sketcher.Constraint("Vertical", 0),
    Sketcher.Constraint("Horizontal", 1),
    Sketcher.Constraint("Vertical", 2),
    Sketcher.Constraint("Horizontal", 3),
    Sketcher.Constraint("DistanceY", 0, 2, 0, 1, 1.0),
    Sketcher.Constraint("DistanceX", 1, 1, 1, 2, 0.5),
    Sketcher.Constraint("DistanceY", -1, 1, 0, 2, 2.9779),
    Sketcher.Constraint("DistanceX", -1, 1, 0, 2, 5.790656),
])
pad12 = body.newObject("PartDesign::Pad", "Pad011")
pad12.Profile = sketch12
pad12.Length = 0.04

# Sketch on XY plane
sketch13 = body.newObject("Sketcher::SketchObject", "Sketch012")
sketch13.AttachmentSupport = (doc.getObject("XY_Plane"), [""])
sketch13.MapMode = "FlatFace"
sketch13.AttachmentOffset = App.Placement(App.Vector(0, 0, -0.42), App.Rotation())
sketch13.addGeometry([
    Part.LineSegment(App.Vector(1, 4.3, 0), App.Vector(8.7, 4.3, 0)),  # 0
    Part.ArcOfCircle(Part.Circle(App.Vector(8.7, 3.4, 0), App.Vector(0, 0, 1), 0.9), math.radians(0), math.radians(90)),  # 1
    Part.LineSegment(App.Vector(9.6, 3.4, 0), App.Vector(9.6, 1, 0)),  # 2
    Part.ArcOfCircle(Part.Circle(App.Vector(8.7, 1, 0), App.Vector(0, 0, 1), 0.9), math.radians(-90), math.radians(0)),  # 3
    Part.LineSegment(App.Vector(8.7, 0.1, 0), App.Vector(1, 0.1, 0)),  # 4
    Part.ArcOfCircle(Part.Circle(App.Vector(1, 1, 0), App.Vector(0, 0, 1), 0.9), math.radians(180), math.radians(270)),  # 5
    Part.LineSegment(App.Vector(0.1, 1, 0), App.Vector(0.1, 3.4, 0)),  # 6
    Part.ArcOfCircle(Part.Circle(App.Vector(1, 3.4, 0), App.Vector(0, 0, 1), 0.9), math.radians(90), math.radians(180)),  # 7
], False)
sketch13.addConstraint([
    Sketcher.Constraint("Tangent", 0, 2, 1, 2),
    Sketcher.Constraint("Tangent", 1, 1, 2, 1),
    Sketcher.Constraint("Tangent", 2, 2, 3, 2),
    Sketcher.Constraint("Tangent", 3, 1, 4, 1),
    Sketcher.Constraint("Tangent", 4, 2, 5, 2),
    Sketcher.Constraint("Tangent", 5, 1, 6, 1),
    Sketcher.Constraint("Tangent", 6, 2, 7, 2),
    Sketcher.Constraint("Tangent", 7, 1, 0, 1),
    Sketcher.Constraint("Horizontal", 0),
    Sketcher.Constraint("Vertical", 2),
    Sketcher.Constraint("Horizontal", 4),
    Sketcher.Constraint("Vertical", 6),
    Sketcher.Constraint("Equal", 1, 3),
    Sketcher.Constraint("Equal", 3, 5),
    Sketcher.Constraint("Equal", 5, 7),
    Sketcher.Constraint("Radius", 1, 0.9),
    Sketcher.Constraint("DistanceX", 0, 1, 0, 2, 7.7),
    Sketcher.Constraint("DistanceY", 2, 2, 2, 1, 2.4),
    Sketcher.Constraint("DistanceY", -1, 1, 3, 3, 1.0),
    Sketcher.Constraint("DistanceX", -1, 1, 5, 3, 1.0),
])
pad13 = body.newObject("PartDesign::Pad", "Pad012")
pad13.Profile = sketch13
pad13.Length = 0.025
pad13.Reversed = True

# Sketch on XY plane
sketch14 = body.newObject("Sketcher::SketchObject", "Sketch013")
sketch14.AttachmentSupport = (doc.getObject("XY_Plane"), [""])
sketch14.MapMode = "FlatFace"
sketch14.AttachmentOffset = App.Placement(App.Vector(0, 0, 0.04), App.Rotation())
sketch14.addGeometry(Part.Circle(App.Vector(8.2, 3.97, 0), App.Vector(0, 0, 1), 0.15), False)
sketch14.addConstraint([
    Sketcher.Constraint("Diameter", 0, 0.3),
    Sketcher.Constraint("DistanceX", -1, 1, 0, 3, 8.199307),
    Sketcher.Constraint("DistanceY", -1, 1, 0, 3, 3.967993),
])
doc.recompute()
hole = body.newObject("PartDesign::Hole", "Hole")
hole.Profile = sketch14
hole.ThreadType = "None"
hole.Diameter = 0.3
hole.DepthType = "ThroughAll"

# Sketch on XY plane
sketch15 = body.newObject("Sketcher::SketchObject", "Sketch014")
sketch15.AttachmentSupport = (doc.getObject("XY_Plane"), [""])
sketch15.MapMode = "FlatFace"
sketch15.AttachmentOffset = App.Placement(App.Vector(0, 0, 0.04), App.Rotation())
sketch15.addGeometry(Part.Circle(App.Vector(7.05, 0.79, 0), App.Vector(0, 0, 1), 0.15), False)
sketch15.addConstraint([
    Sketcher.Constraint("Diameter", 0, 0.3),
    Sketcher.Constraint("DistanceX", -1, 1, 0, 3, 7.05),
    Sketcher.Constraint("DistanceY", -1, 1, 0, 3, 0.788728),
])
doc.recompute()
hole2 = body.newObject("PartDesign::Hole", "Hole001")
hole2.Profile = sketch15
hole2.ThreadType = "None"
hole2.Diameter = 0.3
hole2.DepthType = "ThroughAll"

# Sketch on XY plane
sketch16 = body.newObject("Sketcher::SketchObject", "Sketch015")
sketch16.AttachmentSupport = (doc.getObject("XY_Plane"), [""])
sketch16.MapMode = "FlatFace"
sketch16.AttachmentOffset = App.Placement(App.Vector(0, 0, 0.04), App.Rotation())
sketch16.addGeometry(Part.Circle(App.Vector(0.54, 2.33, 0), App.Vector(0, 0, 1), 0.15), False)
sketch16.addConstraint([
    Sketcher.Constraint("Diameter", 0, 0.3),
    Sketcher.Constraint("DistanceX", -1, 1, 0, 3, 0.541647),
    Sketcher.Constraint("DistanceY", -1, 1, 0, 3, 2.331926),
])
doc.recompute()
hole3 = body.newObject("PartDesign::Hole", "Hole002")
hole3.Profile = sketch16
hole3.ThreadType = "None"
hole3.Diameter = 0.3
hole3.DepthType = "ThroughAll"
doc.recompute()

chamfer = body.newObject("PartDesign::Chamfer", "Chamfer")
chamfer.Base = (hole3, edges_at(hole3, [(0.917, 3.931, 0.02)]))
chamfer.Size = 0.1
doc.recompute()

chamfer2 = body.newObject("PartDesign::Chamfer", "Chamfer001")
chamfer2.Base = (chamfer, edges_at(chamfer, [(1.148, 3.831, 0.02)]))
chamfer2.Size = 0.05
doc.recompute()

chamfer3 = body.newObject("PartDesign::Chamfer", "Chamfer002")
chamfer3.Base = (chamfer2, edges_at(chamfer2, [(0.917, 3.281, 0.02)]))
chamfer3.Size = 0.1
doc.recompute()

chamfer4 = body.newObject("PartDesign::Chamfer", "Chamfer003")
chamfer4.Base = (chamfer3, edges_at(chamfer3, [(0.817, 3.831, 0.02)]))
chamfer4.Size = 0.05
doc.recompute()

chamfer5 = body.newObject("PartDesign::Chamfer", "Chamfer004")
chamfer5.Base = (chamfer4, edges_at(chamfer4, [(1.048, 3.281, 0.02)]))
chamfer5.Size = 0.1
doc.recompute()

chamfer6 = body.newObject("PartDesign::Chamfer", "Chamfer005")
chamfer6.Base = (chamfer5, edges_at(chamfer5, [(1.048, 3.931, 0.02)]))
chamfer6.Size = 0.1
doc.recompute()

chamfer7 = body.newObject("PartDesign::Chamfer", "Chamfer006")
chamfer7.Base = (chamfer6, edges_at(chamfer6, [(1.148, 3.381, 0.02)]))
chamfer7.Size = 0.05
doc.recompute()

chamfer8 = body.newObject("PartDesign::Chamfer", "Chamfer007")
chamfer8.Base = (chamfer7, edges_at(chamfer7, [(0.817, 3.381, 0.02)]))
chamfer8.Size = 0.05

doc.recompute()
